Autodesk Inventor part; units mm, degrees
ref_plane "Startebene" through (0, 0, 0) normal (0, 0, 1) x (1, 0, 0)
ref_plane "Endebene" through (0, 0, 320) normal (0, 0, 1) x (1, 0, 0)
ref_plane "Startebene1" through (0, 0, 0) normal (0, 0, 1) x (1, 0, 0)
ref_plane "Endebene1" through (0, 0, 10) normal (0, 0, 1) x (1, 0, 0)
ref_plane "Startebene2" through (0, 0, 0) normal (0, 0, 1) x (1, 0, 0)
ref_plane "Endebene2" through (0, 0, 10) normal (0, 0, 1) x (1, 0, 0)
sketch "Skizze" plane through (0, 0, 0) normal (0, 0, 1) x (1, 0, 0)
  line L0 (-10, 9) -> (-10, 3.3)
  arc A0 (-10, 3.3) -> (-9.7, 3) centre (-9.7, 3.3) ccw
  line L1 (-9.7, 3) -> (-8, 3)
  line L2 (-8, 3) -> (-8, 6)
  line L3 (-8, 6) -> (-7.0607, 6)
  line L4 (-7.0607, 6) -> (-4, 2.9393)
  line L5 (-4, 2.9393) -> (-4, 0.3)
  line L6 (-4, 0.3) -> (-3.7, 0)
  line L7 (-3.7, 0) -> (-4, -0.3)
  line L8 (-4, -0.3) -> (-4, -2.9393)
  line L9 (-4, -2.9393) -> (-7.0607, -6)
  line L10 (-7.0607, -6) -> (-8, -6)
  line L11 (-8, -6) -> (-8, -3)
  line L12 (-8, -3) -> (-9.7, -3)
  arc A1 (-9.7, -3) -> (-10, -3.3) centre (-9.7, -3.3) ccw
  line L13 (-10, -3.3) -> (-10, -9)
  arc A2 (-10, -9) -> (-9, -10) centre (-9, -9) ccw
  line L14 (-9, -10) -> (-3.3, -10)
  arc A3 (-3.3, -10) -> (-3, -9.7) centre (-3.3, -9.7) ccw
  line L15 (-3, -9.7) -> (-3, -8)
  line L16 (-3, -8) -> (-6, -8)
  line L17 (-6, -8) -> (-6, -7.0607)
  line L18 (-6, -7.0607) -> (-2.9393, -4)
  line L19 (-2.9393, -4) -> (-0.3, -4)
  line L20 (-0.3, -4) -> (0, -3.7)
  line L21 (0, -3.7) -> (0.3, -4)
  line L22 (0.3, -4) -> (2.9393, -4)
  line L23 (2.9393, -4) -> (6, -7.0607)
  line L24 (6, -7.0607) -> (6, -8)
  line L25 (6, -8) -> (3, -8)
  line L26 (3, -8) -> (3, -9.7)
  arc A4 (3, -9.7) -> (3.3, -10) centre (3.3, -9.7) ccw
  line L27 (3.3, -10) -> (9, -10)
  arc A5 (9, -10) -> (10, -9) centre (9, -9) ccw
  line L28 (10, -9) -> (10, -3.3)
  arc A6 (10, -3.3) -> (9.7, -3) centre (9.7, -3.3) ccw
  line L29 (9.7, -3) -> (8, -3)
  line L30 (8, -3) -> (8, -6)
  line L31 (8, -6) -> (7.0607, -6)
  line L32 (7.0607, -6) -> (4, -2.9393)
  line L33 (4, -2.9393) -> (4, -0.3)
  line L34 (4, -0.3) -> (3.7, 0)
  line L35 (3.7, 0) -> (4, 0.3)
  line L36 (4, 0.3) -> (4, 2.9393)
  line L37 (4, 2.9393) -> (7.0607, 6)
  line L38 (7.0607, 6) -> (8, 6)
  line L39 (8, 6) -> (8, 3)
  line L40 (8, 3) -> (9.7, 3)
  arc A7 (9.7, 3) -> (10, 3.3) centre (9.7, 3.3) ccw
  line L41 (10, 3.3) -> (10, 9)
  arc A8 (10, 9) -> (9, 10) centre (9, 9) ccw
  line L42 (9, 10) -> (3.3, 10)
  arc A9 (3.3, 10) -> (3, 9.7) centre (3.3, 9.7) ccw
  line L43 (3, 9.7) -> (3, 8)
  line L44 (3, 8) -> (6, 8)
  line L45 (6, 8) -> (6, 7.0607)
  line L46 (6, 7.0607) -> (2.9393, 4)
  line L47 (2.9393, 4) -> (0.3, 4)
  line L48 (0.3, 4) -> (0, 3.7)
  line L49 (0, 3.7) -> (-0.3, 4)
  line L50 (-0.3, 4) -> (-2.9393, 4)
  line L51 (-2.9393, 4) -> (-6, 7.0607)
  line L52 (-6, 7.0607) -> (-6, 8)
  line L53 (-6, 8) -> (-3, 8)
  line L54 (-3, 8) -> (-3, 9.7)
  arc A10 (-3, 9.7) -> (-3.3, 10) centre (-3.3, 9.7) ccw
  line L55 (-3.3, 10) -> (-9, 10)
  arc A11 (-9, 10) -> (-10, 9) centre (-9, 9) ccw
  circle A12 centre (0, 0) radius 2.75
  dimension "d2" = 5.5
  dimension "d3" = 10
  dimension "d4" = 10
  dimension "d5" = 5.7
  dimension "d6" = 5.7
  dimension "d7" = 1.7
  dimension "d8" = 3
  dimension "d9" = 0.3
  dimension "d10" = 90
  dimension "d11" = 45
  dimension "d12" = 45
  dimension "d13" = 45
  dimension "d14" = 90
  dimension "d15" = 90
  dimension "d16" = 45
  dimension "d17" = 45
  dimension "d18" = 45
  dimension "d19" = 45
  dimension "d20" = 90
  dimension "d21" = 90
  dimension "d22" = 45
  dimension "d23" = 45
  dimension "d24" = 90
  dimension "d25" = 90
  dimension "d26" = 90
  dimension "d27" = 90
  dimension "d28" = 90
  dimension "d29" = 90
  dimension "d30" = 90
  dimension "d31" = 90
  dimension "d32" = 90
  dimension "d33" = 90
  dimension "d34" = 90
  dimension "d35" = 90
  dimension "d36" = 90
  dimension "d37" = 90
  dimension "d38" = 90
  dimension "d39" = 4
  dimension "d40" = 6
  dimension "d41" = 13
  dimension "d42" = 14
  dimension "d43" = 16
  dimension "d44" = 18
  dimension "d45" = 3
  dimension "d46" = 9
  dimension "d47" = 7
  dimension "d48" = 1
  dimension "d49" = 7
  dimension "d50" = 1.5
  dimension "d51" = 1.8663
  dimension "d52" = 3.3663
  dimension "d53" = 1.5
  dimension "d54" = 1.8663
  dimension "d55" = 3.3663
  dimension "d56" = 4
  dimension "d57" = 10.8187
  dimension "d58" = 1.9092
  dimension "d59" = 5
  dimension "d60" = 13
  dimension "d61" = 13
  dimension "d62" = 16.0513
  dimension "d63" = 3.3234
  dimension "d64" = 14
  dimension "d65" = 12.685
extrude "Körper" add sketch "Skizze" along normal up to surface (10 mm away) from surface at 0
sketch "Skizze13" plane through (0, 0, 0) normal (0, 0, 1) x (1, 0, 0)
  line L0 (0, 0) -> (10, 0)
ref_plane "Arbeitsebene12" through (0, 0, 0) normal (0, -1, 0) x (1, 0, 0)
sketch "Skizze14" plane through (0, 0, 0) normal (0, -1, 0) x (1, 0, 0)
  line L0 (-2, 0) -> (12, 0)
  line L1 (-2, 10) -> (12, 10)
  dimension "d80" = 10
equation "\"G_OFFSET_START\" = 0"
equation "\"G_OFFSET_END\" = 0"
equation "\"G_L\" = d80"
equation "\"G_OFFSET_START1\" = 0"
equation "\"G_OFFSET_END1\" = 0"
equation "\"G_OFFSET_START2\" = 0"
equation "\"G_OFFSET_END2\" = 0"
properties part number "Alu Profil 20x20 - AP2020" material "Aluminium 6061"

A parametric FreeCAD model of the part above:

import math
import FreeCAD as App
import Part
import Sketcher
from FreeCAD import Vector

doc = App.newDocument("Part")
params = doc.addObject("Spreadsheet::Sheet", "Params")
for row, (alias, value) in enumerate([
    ("sketch1_radius", "1 mm"),
    ("sketch1_diameter", "5.5 mm"),
    ("sketch1_radius2", "0.3 mm"),
    ("sketch1_width", "3 mm"),
    ("sketch1_width2", "1.7 mm"),
    ("pad1_length", "10 mm"),
], start=1):
    params.set(f"A{row}", alias)
    params.set(f"B{row}", "=" + value)
    params.setAlias(f"B{row}", alias)

body = doc.addObject("PartDesign::Body", "Body")

# Sketch on XY plane
sketch1 = body.newObject("Sketcher::SketchObject", "Sketch")
sketch1.AttachmentSupport = (doc.getObject("XY_Plane"), [""])
sketch1.MapMode = "FlatFace"
sketch1.addGeometry([
    Part.ArcOfCircle(Part.Circle(Vector(-9, 9, 0), Vector(0, 0, 1), 1), math.radians(90), math.radians(180)),  # 0
    Part.LineSegment(Vector(-10, 9, 0), Vector(-10, 3.3, 0)),  # 1
    Part.ArcOfCircle(Part.Circle(Vector(-9.7, 3.3, 0), Vector(0, 0, 1), 0.3), math.radians(180), math.radians(270)),  # 2
    Part.LineSegment(Vector(-9.7, 3, 0), Vector(-8, 3, 0)),  # 3
    Part.LineSegment(Vector(-8, 3, 0), Vector(-8, 6, 0)),  # 4
    Part.LineSegment(Vector(-8, 6, 0), Vector(-7.06, 6, 0)),  # 5
    Part.LineSegment(Vector(-7.06, 6, 0), Vector(-4, 2.94, 0)),  # 6
    Part.LineSegment(Vector(-4, 2.94, 0), Vector(-4, 0.3, 0)),  # 7
    Part.LineSegment(Vector(-4, 0.3, 0), Vector(-3.7, 0, 0)),  # 8
    Part.LineSegment(Vector(-3.7, 0, 0), Vector(-4, -0.3, 0)),  # 9
    Part.LineSegment(Vector(-4, -0.3, 0), Vector(-4, -2.94, 0)),  # 10
    Part.LineSegment(Vector(-4, -2.94, 0), Vector(-7.06, -6, 0)),  # 11
    Part.LineSegment(Vector(-7.06, -6, 0), Vector(-8, -6, 0)),  # 12
    Part.LineSegment(Vector(-8, -6, 0), Vector(-8, -3, 0)),  # 13
    Part.LineSegment(Vector(-8, -3, 0), Vector(-9.7, -3, 0)),  # 14
    Part.ArcOfCircle(Part.Circle(Vector(-9.7, -3.3, 0), Vector(0, 0, 1), 0.3), math.radians(90), math.radians(180)),  # 15
    Part.LineSegment(Vector(-10, -3.3, 0), Vector(-10, -9, 0)),  # 16
    Part.ArcOfCircle(Part.Circle(Vector(-9, -9, 0), Vector(0, 0, 1), 1), math.radians(180), math.radians(270)),  # 17
    Part.LineSegment(Vector(-9, -10, 0), Vector(-3.3, -10, 0)),  # 18
    Part.ArcOfCircle(Part.Circle(Vector(-3.3, -9.7, 0), Vector(0, 0, 1), 0.3), math.radians(-90), math.radians(0)),  # 19
    Part.LineSegment(Vector(-3, -9.7, 0), Vector(-3, -8, 0)),  # 20
    Part.LineSegment(Vector(-3, -8, 0), Vector(-6, -8, 0)),  # 21
    Part.LineSegment(Vector(-6, -8, 0), Vector(-6, -7.06, 0)),  # 22
    Part.LineSegment(Vector(-6, -7.06, 0), Vector(-2.94, -4, 0)),  # 23
    Part.LineSegment(Vector(-2.94, -4, 0), Vector(-0.3, -4, 0)),  # 24
    Part.LineSegment(Vector(-0.3, -4, 0), Vector(0, -3.7, 0)),  # 25
    Part.LineSegment(Vector(0, -3.7, 0), Vector(0.3, -4, 0)),  # 26
    Part.LineSegment(Vector(0.3, -4, 0), Vector(2.94, -4, 0)),  # 27
    Part.LineSegment(Vector(2.94, -4, 0), Vector(6, -7.06, 0)),  # 28
    Part.LineSegment(Vector(6, -7.06, 0), Vector(6, -8, 0)),  # 29
    Part.LineSegment(Vector(6, -8, 0), Vector(3, -8, 0)),  # 30
    Part.LineSegment(Vector(3, -8, 0), Vector(3, -9.7, 0)),  # 31
    Part.ArcOfCircle(Part.Circle(Vector(3.3, -9.7, 0), Vector(0, 0, 1), 0.3), math.radians(180), math.radians(270)),  # 32
    Part.LineSegment(Vector(3.3, -10, 0), Vector(9, -10, 0)),  # 33
    Part.ArcOfCircle(Part.Circle(Vector(9, -9, 0), Vector(0, 0, 1), 1), math.radians(-90), math.radians(0)),  # 34
    Part.LineSegment(Vector(10, -9, 0), Vector(10, -3.3, 0)),  # 35
    Part.ArcOfCircle(Part.Circle(Vector(9.7, -3.3, 0), Vector(0, 0, 1), 0.3), math.radians(0), math.radians(90)),  # 36
    Part.LineSegment(Vector(9.7, -3, 0), Vector(8, -3, 0)),  # 37
    Part.LineSegment(Vector(8, -3, 0), Vector(8, -6, 0)),  # 38
    Part.LineSegment(Vector(8, -6, 0), Vector(7.06, -6, 0)),  # 39
    Part.LineSegment(Vector(7.06, -6, 0), Vector(4, -2.94, 0)),  # 40
    Part.LineSegment(Vector(4, -2.94, 0), Vector(4, -0.3, 0)),  # 41
    Part.LineSegment(Vector(4, -0.3, 0), Vector(3.7, 0, 0)),  # 42
    Part.LineSegment(Vector(3.7, 0, 0), Vector(4, 0.3, 0)),  # 43
    Part.LineSegment(Vector(4, 0.3, 0), Vector(4, 2.94, 0)),  # 44
    Part.LineSegment(Vector(4, 2.94, 0), Vector(7.06, 6, 0)),  # 45
    Part.LineSegment(Vector(7.06, 6, 0), Vector(8, 6, 0)),  # 46
    Part.LineSegment(Vector(8, 6, 0), Vector(8, 3, 0)),  # 47
    Part.LineSegment(Vector(8, 3, 0), Vector(9.7, 3, 0)),  # 48
    Part.ArcOfCircle(Part.Circle(Vector(9.7, 3.3, 0), Vector(0, 0, 1), 0.3), math.radians(-90), math.radians(0)),  # 49
    Part.LineSegment(Vector(10, 3.3, 0), Vector(10, 9, 0)),  # 50
    Part.ArcOfCircle(Part.Circle(Vector(9, 9, 0), Vector(0, 0, 1), 1), math.radians(0), math.radians(90)),  # 51
    Part.LineSegment(Vector(9, 10, 0), Vector(3.3, 10, 0)),  # 52
    Part.ArcOfCircle(Part.Circle(Vector(3.3, 9.7, 0), Vector(0, 0, 1), 0.3), math.radians(90), math.radians(180)),  # 53
    Part.LineSegment(Vector(3, 9.7, 0), Vector(3, 8, 0)),  # 54
    Part.LineSegment(Vector(3, 8, 0), Vector(6, 8, 0)),  # 55
    Part.LineSegment(Vector(6, 8, 0), Vector(6, 7.06, 0)),  # 56
    Part.LineSegment(Vector(6, 7.06, 0), Vector(2.94, 4, 0)),  # 57
    Part.LineSegment(Vector(2.94, 4, 0), Vector(0.3, 4, 0)),  # 58
    Part.LineSegment(Vector(0.3, 4, 0), Vector(0, 3.7, 0)),  # 59
    Part.LineSegment(Vector(0, 3.7, 0), Vector(-0.3, 4, 0)),  # 60
    Part.LineSegment(Vector(-0.3, 4, 0), Vector(-2.94, 4, 0)),  # 61
    Part.LineSegment(Vector(-2.94, 4, 0), Vector(-6, 7.06, 0)),  # 62
    Part.LineSegment(Vector(-6, 7.06, 0), Vector(-6, 8, 0)),  # 63
    Part.LineSegment(Vector(-6, 8, 0), Vector(-3, 8, 0)),  # 64
    Part.LineSegment(Vector(-3, 8, 0), Vector(-3, 9.7, 0)),  # 65
    Part.ArcOfCircle(Part.Circle(Vector(-3.3, 9.7, 0), Vector(0, 0, 1), 0.3), math.radians(0), math.radians(90)),  # 66
    Part.LineSegment(Vector(-3.3, 10, 0), Vector(-9, 10, 0)),  # 67
    Part.Circle(Vector(0, 0, 0), Vector(0, 0, 1), 2.75),  # 68
], False)
sketch1.addConstraint([
    Sketcher.Constraint("Tangent", 0, 2, 1, 1),
    Sketcher.Constraint("Tangent", 1, 2, 2, 1),
    Sketcher.Constraint("Tangent", 2, 2, 3, 1),
    Sketcher.Constraint("Coincident", 3, 2, 4, 1),
    Sketcher.Constraint("Coincident", 4, 2, 5, 1),
    Sketcher.Constraint("Coincident", 5, 2, 6, 1),
    Sketcher.Constraint("Coincident", 6, 2, 7, 1),
    Sketcher.Constraint("Coincident", 7, 2, 8, 1),
    Sketcher.Constraint("Coincident", 8, 2, 9, 1),
    Sketcher.Constraint("Coincident", 9, 2, 10, 1),
    Sketcher.Constraint("Coincident", 10, 2, 11, 1),
    Sketcher.Constraint("Coincident", 11, 2, 12, 1),
    Sketcher.Constraint("Coincident", 12, 2, 13, 1),
    Sketcher.Constraint("Coincident", 13, 2, 14, 1),
    Sketcher.Constraint("Tangent", 14, 2, 15, 1),
    Sketcher.Constraint("Tangent", 15, 2, 16, 1),
    Sketcher.Constraint("Tangent", 16, 2, 17, 1),
    Sketcher.Constraint("Tangent", 17, 2, 18, 1),
    Sketcher.Constraint("Tangent", 18, 2, 19, 1),
    Sketcher.Constraint("Tangent", 19, 2, 20, 1),
    Sketcher.Constraint("Coincident", 20, 2, 21, 1),
    Sketcher.Constraint("Coincident", 21, 2, 22, 1),
    Sketcher.Constraint("Coincident", 22, 2, 23, 1),
    Sketcher.Constraint("Coincident", 23, 2, 24, 1),
    Sketcher.Constraint("Coincident", 24, 2, 25, 1),
    Sketcher.Constraint("Coincident", 25, 2, 26, 1),
    Sketcher.Constraint("Coincident", 26, 2, 27, 1),
    Sketcher.Constraint("Coincident", 27, 2, 28, 1),
    Sketcher.Constraint("Coincident", 28, 2, 29, 1),
    Sketcher.Constraint("Coincident", 29, 2, 30, 1),
    Sketcher.Constraint("Coincident", 30, 2, 31, 1),
    Sketcher.Constraint("Tangent", 31, 2, 32, 1),
    Sketcher.Constraint("Tangent", 32, 2, 33, 1),
    Sketcher.Constraint("Tangent", 33, 2, 34, 1),
    Sketcher.Constraint("Tangent", 34, 2, 35, 1),
    Sketcher.Constraint("Tangent", 35, 2, 36, 1),
    Sketcher.Constraint("Tangent", 36, 2, 37, 1),
    Sketcher.Constraint("Coincident", 37, 2, 38, 1),
    Sketcher.Constraint("Coincident", 38, 2, 39, 1),
    Sketcher.Constraint("Coincident", 39, 2, 40, 1),
    Sketcher.Constraint("Coincident", 40, 2, 41, 1),
    Sketcher.Constraint("Coincident", 41, 2, 42, 1),
    Sketcher.Constraint("Coincident", 42, 2, 43, 1),
    Sketcher.Constraint("Coincident", 43, 2, 44, 1),
    Sketcher.Constraint("Coincident", 44, 2, 45, 1),
    Sketcher.Constraint("Coincident", 45, 2, 46, 1),
    Sketcher.Constraint("Coincident", 46, 2, 47, 1),
    Sketcher.Constraint("Coincident", 47, 2, 48, 1),
    Sketcher.Constraint("Tangent", 48, 2, 49, 1),
    Sketcher.Constraint("Tangent", 49, 2, 50, 1),
    Sketcher.Constraint("Tangent", 50, 2, 51, 1),
    Sketcher.Constraint("Tangent", 51, 2, 52, 1),
    Sketcher.Constraint("Tangent", 52, 2, 53, 1),
    Sketcher.Constraint("Tangent", 53, 2, 54, 1),
    Sketcher.Constraint("Coincident", 54, 2, 55, 1),
    Sketcher.Constraint("Coincident", 55, 2, 56, 1),
    Sketcher.Constraint("Coincident", 56, 2, 57, 1),
    Sketcher.Constraint("Coincident", 57, 2, 58, 1),
    Sketcher.Constraint("Coincident", 58, 2, 59, 1),
    Sketcher.Constraint("Coincident", 59, 2, 60, 1),
    Sketcher.Constraint("Coincident", 60, 2, 61, 1),
    Sketcher.Constraint("Coincident", 61, 2, 62, 1),
    Sketcher.Constraint("Coincident", 62, 2, 63, 1),
    Sketcher.Constraint("Coincident", 63, 2, 64, 1),
    Sketcher.Constraint("Coincident", 64, 2, 65, 1),
    Sketcher.Constraint("Tangent", 65, 2, 66, 1),
    Sketcher.Constraint("Tangent", 66, 2, 67, 1),
    Sketcher.Constraint("Tangent", 67, 2, 0, 1),
    Sketcher.Constraint("Vertical", 1),
    Sketcher.Constraint("Horizontal", 3),
    Sketcher.Constraint("Vertical", 4),
    Sketcher.Constraint("Horizontal", 5),
    Sketcher.Constraint("Vertical", 7),
    Sketcher.Constraint("Vertical", 10),
    Sketcher.Constraint("Horizontal", 12),
    Sketcher.Constraint("Vertical", 13),
    Sketcher.Constraint("Horizontal", 14),
    Sketcher.Constraint("Vertical", 16),
    Sketcher.Constraint("Horizontal", 18),
    Sketcher.Constraint("Vertical", 20),
    Sketcher.Constraint("Horizontal", 21),
    Sketcher.Constraint("Vertical", 22),
    Sketcher.Constraint("Horizontal", 24),
    Sketcher.Constraint("Horizontal", 27),
    Sketcher.Constraint("Vertical", 29),
    Sketcher.Constraint("Horizontal", 30),
    Sketcher.Constraint("Vertical", 31),
    Sketcher.Constraint("Horizontal", 33),
    Sketcher.Constraint("Vertical", 35),
    Sketcher.Constraint("Horizontal", 37),
    Sketcher.Constraint("Vertical", 38),
    Sketcher.Constraint("Horizontal", 39),
    Sketcher.Constraint("Vertical", 41),
    Sketcher.Constraint("Vertical", 44),
    Sketcher.Constraint("Horizontal", 46),
    Sketcher.Constraint("Vertical", 47),
    Sketcher.Constraint("Horizontal", 48),
    Sketcher.Constraint("Vertical", 50),
    Sketcher.Constraint("Horizontal", 52),
    Sketcher.Constraint("Vertical", 54),
    Sketcher.Constraint("Horizontal", 55),
    Sketcher.Constraint("Vertical", 56),
    Sketcher.Constraint("Horizontal", 58),
    Sketcher.Constraint("Horizontal", 61),
    Sketcher.Constraint("Vertical", 63),
    Sketcher.Constraint("Horizontal", 64),
    Sketcher.Constraint("Vertical", 65),
    Sketcher.Constraint("Horizontal", 67),
    Sketcher.Constraint("Coincident", 68, 3, -1, 1),
    Sketcher.Constraint("Equal", 2, 15),
    Sketcher.Constraint("Equal", 0, 17),
    Sketcher.Constraint("Equal", 15, 19),
    Sketcher.Constraint("Equal", 19, 32),
    Sketcher.Constraint("Equal", 17, 34),
    Sketcher.Constraint("Equal", 32, 36),
    Sketcher.Constraint("Equal", 36, 49),
    Sketcher.Constraint("Equal", 34, 51),
    Sketcher.Constraint("Equal", 49, 53),
    Sketcher.Constraint("Equal", 53, 66),
    Sketcher.Constraint("Symmetric", 0, 3, 34, 3, -1, 1),
    Sketcher.Constraint("Symmetric", 15, 3, 49, 3, -1, 1),
    Sketcher.Constraint("Symmetric", 19, 3, 53, 3, -1, 1),
    Sketcher.Constraint("Symmetric", 3, 2, 37, 2, -1, 1),
    Sketcher.Constraint("Symmetric", 5, 2, 39, 2, -1, 1),
    Sketcher.Constraint("Symmetric", 6, 2, 40, 2, -1, 1),
    Sketcher.Constraint("Symmetric", 8, 2, 42, 2, -1, 1),
    Sketcher.Constraint("Symmetric", 9, 2, 43, 2, -1, 1),
    Sketcher.Constraint("Symmetric", 11, 2, 45, 2, -1, 1),
    Sketcher.Constraint("Symmetric", 21, 2, 55, 2, -1, 1),
    Sketcher.Constraint("Symmetric", 23, 2, 57, 2, -1, 1),
    Sketcher.Constraint("Symmetric", 25, 2, 59, 2, -1, 1),
    Sketcher.Constraint("Symmetric", 26, 2, 60, 2, -1, 1),
    Sketcher.Constraint("Symmetric", 28, 2, 62, 2, -1, 1),
    Sketcher.Constraint("Symmetric", 30, 2, 64, 2, -1, 1),
    Sketcher.Constraint("Symmetric", 19, 3, 32, 3, -2),
    Sketcher.Constraint("Symmetric", 15, 3, 36, 3, -2),
    Sketcher.Constraint("Symmetric", 24, 2, 26, 2, -2),
    Sketcher.Constraint("Symmetric", 22, 2, 28, 2, -2),
    Sketcher.Constraint("Symmetric", 12, 2, 38, 2, -2),
    Sketcher.Constraint("Symmetric", 10, 2, 40, 2, -2),
    Sketcher.Constraint("PointOnObject", 8, 2, -1),
    Sketcher.Constraint("PointOnObject", 25, 2, -2),
    Sketcher.Constraint("Parallel", 6, 8),
    Sketcher.Constraint("Perpendicular", 8, 9),
    Sketcher.Constraint("Parallel", 9, 11),
    Sketcher.Constraint("Parallel", 11, 23),
    Sketcher.Constraint("Parallel", 23, 25),
    Sketcher.Constraint("Perpendicular", 25, 26),
    Sketcher.Constraint("Parallel", 26, 28),
    Sketcher.Constraint("Parallel", 40, 42),
    Sketcher.Constraint("Parallel", 43, 45),
    Sketcher.Constraint("Parallel", 45, 57),
    Sketcher.Constraint("Parallel", 57, 59),
    Sketcher.Constraint("Parallel", 60, 62),
    Sketcher.Constraint("Horizontal", 21, 2, 29, 2),
    Sketcher.Constraint("Vertical", 38, 2, 46, 2),
    Sketcher.Constraint("Equal", 67, 1),
    Sketcher.Constraint("Equal", 64, 4),
    Sketcher.Constraint("Equal", 61, 7),
    Sketcher.Constraint("Equal", 48, 20),
    Sketcher.Constraint("Equal", 46, 22),
    Sketcher.Constraint("Equal", 11, 23),
    Sketcher.Constraint("Equal", 9, 25),
    Sketcher.Constraint("Radius", 0, 1.0),
    Sketcher.Constraint("Diameter", 68, 5.5),
    Sketcher.Constraint("Radius", 2, 0.3),
    Sketcher.Constraint("DistanceX", 21, 2, 21, 1, 3.0),
    Sketcher.Constraint("DistanceX", 3, 1, 3, 2, 1.7),
    Sketcher.Constraint("DistanceX", 18, 1, 18, 2, 5.7),
    Sketcher.Constraint("DistanceX", 0, 3, -1, 1, 9.0),
    Sketcher.Constraint("DistanceX", 6, 2, -1, 1, 4.0),
    Sketcher.Constraint("DistanceY", -1, 1, 7, 2, 0.3),
    Sketcher.Constraint("DistanceX", 5, 1, 5, 2, 0.9393),
])
sketch1.setExpression("Constraints[163]", "Params.sketch1_radius")
sketch1.setExpression("Constraints[164]", "Params.sketch1_diameter")
sketch1.setExpression("Constraints[165]", "Params.sketch1_radius2")
sketch1.setExpression("Constraints[166]", "Params.sketch1_width")
sketch1.setExpression("Constraints[167]", "Params.sketch1_width2")
pad1 = body.newObject("PartDesign::Pad", "Pad")
pad1.Profile = sketch1
pad1.setExpression("Length", "Params.pad1_length")

doc.recompute()
